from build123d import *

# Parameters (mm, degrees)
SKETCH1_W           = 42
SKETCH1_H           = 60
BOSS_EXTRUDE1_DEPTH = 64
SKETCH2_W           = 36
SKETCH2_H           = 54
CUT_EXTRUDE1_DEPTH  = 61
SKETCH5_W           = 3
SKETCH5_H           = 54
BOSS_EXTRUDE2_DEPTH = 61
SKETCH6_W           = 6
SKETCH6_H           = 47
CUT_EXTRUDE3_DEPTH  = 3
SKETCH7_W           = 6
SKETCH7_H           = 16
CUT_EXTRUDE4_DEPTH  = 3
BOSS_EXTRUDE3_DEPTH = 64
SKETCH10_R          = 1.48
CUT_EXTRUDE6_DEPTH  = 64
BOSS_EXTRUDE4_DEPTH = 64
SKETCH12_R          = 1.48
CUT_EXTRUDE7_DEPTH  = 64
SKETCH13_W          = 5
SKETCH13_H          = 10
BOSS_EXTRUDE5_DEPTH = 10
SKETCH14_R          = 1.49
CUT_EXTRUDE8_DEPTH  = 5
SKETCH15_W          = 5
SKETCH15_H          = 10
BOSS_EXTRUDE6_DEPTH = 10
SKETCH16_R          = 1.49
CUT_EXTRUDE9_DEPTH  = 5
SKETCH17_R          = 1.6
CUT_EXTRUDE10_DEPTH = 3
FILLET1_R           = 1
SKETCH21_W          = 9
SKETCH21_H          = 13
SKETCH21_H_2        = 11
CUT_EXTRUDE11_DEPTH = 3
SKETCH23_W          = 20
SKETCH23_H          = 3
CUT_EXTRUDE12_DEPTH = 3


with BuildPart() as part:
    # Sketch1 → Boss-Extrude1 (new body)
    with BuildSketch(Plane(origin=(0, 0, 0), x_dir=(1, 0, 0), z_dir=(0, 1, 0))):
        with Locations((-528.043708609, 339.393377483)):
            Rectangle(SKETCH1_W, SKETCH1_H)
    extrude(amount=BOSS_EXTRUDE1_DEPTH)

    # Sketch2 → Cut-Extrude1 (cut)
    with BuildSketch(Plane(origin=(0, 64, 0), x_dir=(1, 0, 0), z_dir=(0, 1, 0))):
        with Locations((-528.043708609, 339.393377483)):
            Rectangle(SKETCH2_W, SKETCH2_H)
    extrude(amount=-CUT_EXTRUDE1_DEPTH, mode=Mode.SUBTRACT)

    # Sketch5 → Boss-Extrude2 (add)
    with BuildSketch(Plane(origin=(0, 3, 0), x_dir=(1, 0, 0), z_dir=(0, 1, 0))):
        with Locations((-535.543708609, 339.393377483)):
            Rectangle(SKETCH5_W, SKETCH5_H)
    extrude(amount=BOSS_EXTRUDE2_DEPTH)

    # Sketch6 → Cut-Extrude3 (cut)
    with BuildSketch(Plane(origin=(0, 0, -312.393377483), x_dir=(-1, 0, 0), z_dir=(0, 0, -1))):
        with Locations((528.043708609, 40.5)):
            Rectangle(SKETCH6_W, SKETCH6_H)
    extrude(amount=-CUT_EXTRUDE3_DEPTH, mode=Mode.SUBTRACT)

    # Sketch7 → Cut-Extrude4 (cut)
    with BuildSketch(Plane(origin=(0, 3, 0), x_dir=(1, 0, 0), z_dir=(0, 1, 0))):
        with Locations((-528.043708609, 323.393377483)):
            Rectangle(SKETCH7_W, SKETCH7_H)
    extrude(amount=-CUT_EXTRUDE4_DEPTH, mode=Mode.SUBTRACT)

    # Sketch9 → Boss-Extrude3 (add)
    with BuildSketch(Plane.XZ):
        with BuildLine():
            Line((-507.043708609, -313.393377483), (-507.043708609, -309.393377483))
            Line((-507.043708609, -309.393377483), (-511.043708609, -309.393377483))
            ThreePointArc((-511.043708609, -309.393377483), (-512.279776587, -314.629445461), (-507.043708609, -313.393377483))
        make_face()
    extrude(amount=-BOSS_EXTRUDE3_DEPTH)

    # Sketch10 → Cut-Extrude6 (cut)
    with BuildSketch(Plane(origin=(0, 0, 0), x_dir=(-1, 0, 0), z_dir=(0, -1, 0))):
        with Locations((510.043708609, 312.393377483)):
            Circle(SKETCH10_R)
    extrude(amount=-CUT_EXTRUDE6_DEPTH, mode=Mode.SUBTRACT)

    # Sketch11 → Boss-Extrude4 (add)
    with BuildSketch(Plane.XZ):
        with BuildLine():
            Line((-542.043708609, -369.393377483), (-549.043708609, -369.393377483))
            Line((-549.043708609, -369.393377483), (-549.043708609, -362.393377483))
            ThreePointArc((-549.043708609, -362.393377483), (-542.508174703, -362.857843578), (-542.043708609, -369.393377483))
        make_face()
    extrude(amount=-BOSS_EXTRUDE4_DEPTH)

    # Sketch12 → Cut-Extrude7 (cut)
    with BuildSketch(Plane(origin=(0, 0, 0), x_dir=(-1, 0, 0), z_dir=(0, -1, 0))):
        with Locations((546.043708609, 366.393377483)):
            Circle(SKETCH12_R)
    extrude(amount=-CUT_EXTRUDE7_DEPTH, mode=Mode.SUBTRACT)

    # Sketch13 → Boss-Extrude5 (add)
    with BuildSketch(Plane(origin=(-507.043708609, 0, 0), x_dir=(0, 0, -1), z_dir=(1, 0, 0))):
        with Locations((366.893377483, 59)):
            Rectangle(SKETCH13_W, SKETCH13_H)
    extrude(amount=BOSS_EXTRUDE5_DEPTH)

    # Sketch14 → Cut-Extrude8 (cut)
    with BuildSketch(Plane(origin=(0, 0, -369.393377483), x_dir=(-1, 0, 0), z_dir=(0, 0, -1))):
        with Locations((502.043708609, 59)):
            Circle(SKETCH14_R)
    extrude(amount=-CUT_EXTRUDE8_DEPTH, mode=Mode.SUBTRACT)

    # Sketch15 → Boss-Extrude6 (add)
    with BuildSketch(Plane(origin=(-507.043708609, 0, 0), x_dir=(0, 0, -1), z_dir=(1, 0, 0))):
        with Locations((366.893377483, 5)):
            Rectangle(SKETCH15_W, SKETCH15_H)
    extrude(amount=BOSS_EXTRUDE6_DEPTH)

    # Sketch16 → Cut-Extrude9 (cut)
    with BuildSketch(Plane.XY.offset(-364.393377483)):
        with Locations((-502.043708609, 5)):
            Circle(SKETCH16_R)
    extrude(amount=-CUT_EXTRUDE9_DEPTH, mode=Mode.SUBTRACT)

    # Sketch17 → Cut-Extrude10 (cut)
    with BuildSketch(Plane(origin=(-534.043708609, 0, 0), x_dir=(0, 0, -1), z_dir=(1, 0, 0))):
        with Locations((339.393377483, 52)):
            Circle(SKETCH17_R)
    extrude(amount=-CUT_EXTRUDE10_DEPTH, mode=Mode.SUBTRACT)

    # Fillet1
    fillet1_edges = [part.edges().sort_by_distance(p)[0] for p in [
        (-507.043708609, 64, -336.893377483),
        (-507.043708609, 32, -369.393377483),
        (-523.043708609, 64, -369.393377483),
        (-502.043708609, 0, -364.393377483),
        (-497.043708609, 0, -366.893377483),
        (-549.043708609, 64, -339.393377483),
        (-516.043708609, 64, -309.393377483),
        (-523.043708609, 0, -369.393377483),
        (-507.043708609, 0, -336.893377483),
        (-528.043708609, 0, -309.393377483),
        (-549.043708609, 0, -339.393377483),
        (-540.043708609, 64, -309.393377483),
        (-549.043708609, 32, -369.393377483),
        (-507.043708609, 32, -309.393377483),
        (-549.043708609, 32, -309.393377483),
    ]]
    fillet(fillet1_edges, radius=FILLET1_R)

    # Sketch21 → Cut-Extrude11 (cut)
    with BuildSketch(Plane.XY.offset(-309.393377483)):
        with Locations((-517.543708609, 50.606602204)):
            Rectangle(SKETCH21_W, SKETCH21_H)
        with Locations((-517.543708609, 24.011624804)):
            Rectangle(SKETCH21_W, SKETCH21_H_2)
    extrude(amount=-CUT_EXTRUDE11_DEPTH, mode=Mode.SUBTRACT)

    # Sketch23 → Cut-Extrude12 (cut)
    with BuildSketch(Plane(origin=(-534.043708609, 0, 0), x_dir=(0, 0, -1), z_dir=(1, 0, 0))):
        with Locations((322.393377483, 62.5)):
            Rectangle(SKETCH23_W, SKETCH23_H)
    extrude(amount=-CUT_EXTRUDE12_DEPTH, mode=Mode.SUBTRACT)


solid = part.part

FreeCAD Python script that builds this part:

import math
import FreeCAD as App
import Part
import Sketcher


def edges_at(feature, points):
    """Names of the edges that pass closest to the given points."""
    edges = feature.Shape.Edges
    near = lambda p: min(range(len(edges)), key=lambda i: edges[i].distToShape(Part.Vertex(*p))[0])
    return sorted({f"Edge{near(p) + 1}" for p in points})


def add_polygon(sketch, points):
    """Adds a closed chain of lines whose ends are joined by coincident constraints."""
    first, n = sketch.GeometryCount, len(points)
    for a, b in zip(points, points[1:] + points[:1]):
        sketch.addGeometry(Part.LineSegment(App.Vector(*a, 0), App.Vector(*b, 0)), False)
    for i in range(n):
        sketch.addConstraint(Sketcher.Constraint("Coincident", first + i, 2, first + (i + 1) % n, 1))

doc = App.newDocument("Part")
body = doc.addObject("PartDesign::Body", "Body")

# Sketch on XZ plane
sketch1 = doc.addObject("Sketcher::SketchObject", "Sketch")
body.addObject(sketch1)
sketch1.AttachmentSupport = (doc.XZ_Plane, [""])
sketch1.MapMode = "FlatFace"
add_polygon(sketch1, [(-549.043709, -369.393377), (-549.043709, -309.393377), (-507.043709, -309.393377), (-507.043709, -369.393377)])  # lines 0-3
sketch1.addConstraint(Sketcher.Constraint("Vertical", 0))
sketch1.addConstraint(Sketcher.Constraint("Horizontal", 1))
sketch1.addConstraint(Sketcher.Constraint("Vertical", 2))
sketch1.addConstraint(Sketcher.Constraint("Horizontal", 3))
sketch1.addConstraint(Sketcher.Constraint("DistanceX", 1, 1, 1, 2, 42.0))
sketch1.addConstraint(Sketcher.Constraint("DistanceY", 0, 1, 0, 2, 60.0))
sketch1.addConstraint(Sketcher.Constraint("DistanceX", 0, 2, -1, 1, 549.043709))
sketch1.addConstraint(Sketcher.Constraint("DistanceY", 0, 2, -1, 1, 309.393377))
pad1 = doc.addObject("PartDesign::Pad", "Pad")
body.addObject(pad1)
pad1.Profile = sketch1
pad1.Length = 64
pad1.Reversed = True

# Sketch on XZ plane
sketch2 = doc.addObject("Sketcher::SketchObject", "Sketch001")
body.addObject(sketch2)
sketch2.AttachmentSupport = (doc.XZ_Plane, [""])
sketch2.MapMode = "FlatFace"
sketch2.AttachmentOffset = App.Placement(App.Vector(0, 0, -64), App.Rotation())
add_polygon(sketch2, [(-546.043709, -366.393377), (-546.043709, -312.393377), (-510.043709, -312.393377), (-510.043709, -366.393377)])  # lines 0-3
sketch2.addConstraint(Sketcher.Constraint("Vertical", 0))
sketch2.addConstraint(Sketcher.Constraint("Horizontal", 1))
sketch2.addConstraint(Sketcher.Constraint("Vertical", 2))
sketch2.addConstraint(Sketcher.Constraint("Horizontal", 3))
sketch2.addConstraint(Sketcher.Constraint("DistanceX", 1, 1, 1, 2, 36.0))
sketch2.addConstraint(Sketcher.Constraint("DistanceY", 0, 1, 0, 2, 54.0))
sketch2.addConstraint(Sketcher.Constraint("DistanceX", 0, 2, -1, 1, 546.043709))
sketch2.addConstraint(Sketcher.Constraint("DistanceY", 0, 2, -1, 1, 312.393377))
pocket1 = doc.addObject("PartDesign::Pocket", "Pocket")
body.addObject(pocket1)
pocket1.Profile = sketch2
pocket1.Length = 61
pocket1.Reversed = True

# Sketch on XZ plane
sketch3 = doc.addObject("Sketcher::SketchObject", "Sketch002")
body.addObject(sketch3)
sketch3.AttachmentSupport = (doc.XZ_Plane, [""])
sketch3.MapMode = "FlatFace"
sketch3.AttachmentOffset = App.Placement(App.Vector(0, 0, -3), App.Rotation())
add_polygon(sketch3, [(-537.043709, -366.393377), (-537.043709, -312.393377), (-534.043709, -312.393377), (-534.043709, -366.393377)])  # lines 0-3
sketch3.addConstraint(Sketcher.Constraint("Vertical", 0))
sketch3.addConstraint(Sketcher.Constraint("Horizontal", 1))
sketch3.addConstraint(Sketcher.Constraint("Vertical", 2))
sketch3.addConstraint(Sketcher.Constraint("Horizontal", 3))
sketch3.addConstraint(Sketcher.Constraint("DistanceX", 1, 1, 1, 2, 3.0))
sketch3.addConstraint(Sketcher.Constraint("DistanceY", 0, 1, 0, 2, 54.0))
sketch3.addConstraint(Sketcher.Constraint("DistanceX", 0, 2, -1, 1, 537.043709))
sketch3.addConstraint(Sketcher.Constraint("DistanceY", 0, 2, -1, 1, 312.393377))
pad2 = doc.addObject("PartDesign::Pad", "Pad001")
body.addObject(pad2)
pad2.Profile = sketch3
pad2.Length = 61
pad2.Reversed = True

# Sketch on XY plane
sketch4 = doc.addObject("Sketcher::SketchObject", "Sketch003")
body.addObject(sketch4)
sketch4.AttachmentSupport = (doc.XY_Plane, [""])
sketch4.MapMode = "FlatFace"
sketch4.AttachmentOffset = App.Placement(App.Vector(0, 0, -312.393377), App.Rotation())
add_polygon(sketch4, [(-525.043709, 64), (-525.043709, 17), (-531.043709, 17), (-531.043709, 64)])  # lines 0-3
sketch4.addConstraint(Sketcher.Constraint("Vertical", 0))
sketch4.addConstraint(Sketcher.Constraint("Horizontal", 1))
sketch4.addConstraint(Sketcher.Constraint("Vertical", 2))
sketch4.addConstraint(Sketcher.Constraint("Horizontal", 3))
sketch4.addConstraint(Sketcher.Constraint("DistanceX", 1, 2, 1, 1, 6.0))
sketch4.addConstraint(Sketcher.Constraint("DistanceY", 0, 2, 0, 1, 47.0))
sketch4.addConstraint(Sketcher.Constraint("DistanceY", -1, 1, 0, 2, 17.0))
sketch4.addConstraint(Sketcher.Constraint("DistanceX", 0, 2, -1, 1, 525.043709))
pocket2 = doc.addObject("PartDesign::Pocket", "Pocket001")
body.addObject(pocket2)
pocket2.Profile = sketch4
pocket2.Length = 3
pocket2.Reversed = True

# Sketch on XZ plane
sketch5 = doc.addObject("Sketcher::SketchObject", "Sketch004")
body.addObject(sketch5)
sketch5.AttachmentSupport = (doc.XZ_Plane, [""])
sketch5.MapMode = "FlatFace"
sketch5.AttachmentOffset = App.Placement(App.Vector(0, 0, -3), App.Rotation())
add_polygon(sketch5, [(-531.043709, -331.393377), (-531.043709, -315.393377), (-525.043709, -315.393377), (-525.043709, -331.393377)])  # lines 0-3
sketch5.addConstraint(Sketcher.Constraint("Vertical", 0))
sketch5.addConstraint(Sketcher.Constraint("Horizontal", 1))
sketch5.addConstraint(Sketcher.Constraint("Vertical", 2))
sketch5.addConstraint(Sketcher.Constraint("Horizontal", 3))
sketch5.addConstraint(Sketcher.Constraint("DistanceX", 1, 1, 1, 2, 6.0))
sketch5.addConstraint(Sketcher.Constraint("DistanceY", 0, 1, 0, 2, 16.0))
sketch5.addConstraint(Sketcher.Constraint("DistanceX", 0, 2, -1, 1, 531.043709))
sketch5.addConstraint(Sketcher.Constraint("DistanceY", 0, 2, -1, 1, 315.393377))
pocket3 = doc.addObject("PartDesign::Pocket", "Pocket002")
body.addObject(pocket3)
pocket3.Profile = sketch5
pocket3.Length = 3
pocket3.Reversed = True

# Sketch on XZ plane
sketch6 = doc.addObject("Sketcher::SketchObject", "Sketch005")
body.addObject(sketch6)
sketch6.AttachmentSupport = (doc.XZ_Plane, [""])
sketch6.MapMode = "FlatFace"
sketch6.addGeometry(Part.LineSegment(App.Vector(-507.043709, -313.393377, 0), App.Vector(-507.043709, -309.393377, 0)), False)
sketch6.addGeometry(Part.LineSegment(App.Vector(-507.043709, -309.393377, 0), App.Vector(-511.043709, -309.393377, 0)), False)
sketch6.addGeometry(Part.ArcOfCircle(Part.Circle(App.Vector(-510.043709, -312.393377, 0), App.Vector(0, 0, 1), 3.162278), math.radians(108.434949), math.radians(341.565051)), False)
sketch6.addConstraint(Sketcher.Constraint("Coincident", 0, 2, 1, 1))
sketch6.addConstraint(Sketcher.Constraint("Coincident", 1, 2, 2, 1))
sketch6.addConstraint(Sketcher.Constraint("Coincident", 2, 2, 0, 1))
sketch6.addConstraint(Sketcher.Constraint("Vertical", 0))
sketch6.addConstraint(Sketcher.Constraint("Horizontal", 1))
sketch6.addConstraint(Sketcher.Constraint("Equal", 1, 0))
sketch6.addConstraint(Sketcher.Constraint("DistanceX", 1, 2, 1, 1, 4.0))
sketch6.addConstraint(Sketcher.Constraint("DistanceX", 2, 3, 0, 2, 3.0))
sketch6.addConstraint(Sketcher.Constraint("DistanceX", 2, 3, -1, 1, 510.043709))
sketch6.addConstraint(Sketcher.Constraint("DistanceY", 2, 3, -1, 1, 312.393377))
pad3 = doc.addObject("PartDesign::Pad", "Pad002")
body.addObject(pad3)
pad3.Profile = sketch6
pad3.Length = 64
pad3.Reversed = True

# Sketch on XZ plane
sketch7 = doc.addObject("Sketcher::SketchObject", "Sketch006")
body.addObject(sketch7)
sketch7.AttachmentSupport = (doc.XZ_Plane, [""])
sketch7.MapMode = "FlatFace"
sketch7.addGeometry(Part.Circle(App.Vector(-510.043709, -312.393377, 0), App.Vector(0, 0, 1), 1.48), False)
sketch7.addConstraint(Sketcher.Constraint("Diameter", 0, 2.96))
sketch7.addConstraint(Sketcher.Constraint("DistanceX", 0, 3, -1, 1, 510.043709))
sketch7.addConstraint(Sketcher.Constraint("DistanceY", 0, 3, -1, 1, 312.393377))
pocket4 = doc.addObject("PartDesign::Pocket", "Pocket003")
body.addObject(pocket4)
pocket4.Profile = sketch7
pocket4.Length = 64

# Sketch on XZ plane
sketch8 = doc.addObject("Sketcher::SketchObject", "Sketch007")
body.addObject(sketch8)
sketch8.AttachmentSupport = (doc.XZ_Plane, [""])
sketch8.MapMode = "FlatFace"
sketch8.addGeometry(Part.LineSegment(App.Vector(-549.043709, -369.393377, 0), App.Vector(-542.043709, -369.393377, 0)), False)
sketch8.addGeometry(Part.ArcOfCircle(Part.Circle(App.Vector(-546.043709, -366.393377, 0), App.Vector(0, 0, 1), 5), math.radians(-36.869898), math.radians(126.869898)), False)
sketch8.addGeometry(Part.LineSegment(App.Vector(-549.043709, -362.393377, 0), App.Vector(-549.043709, -369.393377, 0)), False)
sketch8.addConstraint(Sketcher.Constraint("Coincident", 0, 2, 1, 1))
sketch8.addConstraint(Sketcher.Constraint("Coincident", 1, 2, 2, 1))
sketch8.addConstraint(Sketcher.Constraint("Coincident", 2, 2, 0, 1))
sketch8.addConstraint(Sketcher.Constraint("Horizontal", 0))
sketch8.addConstraint(Sketcher.Constraint("Vertical", 2))
sketch8.addConstraint(Sketcher.Constraint("Equal", 0, 2))
sketch8.addConstraint(Sketcher.Constraint("Radius", 1, 5.0))
sketch8.addConstraint(Sketcher.Constraint("DistanceX", 0, 1, 0, 2, 7.0))
sketch8.addConstraint(Sketcher.Constraint("DistanceX", 1, 3, -1, 1, 546.043709))
sketch8.addConstraint(Sketcher.Constraint("DistanceY", 1, 3, -1, 1, 366.393377))
pad4 = doc.addObject("PartDesign::Pad", "Pad003")
body.addObject(pad4)
pad4.Profile = sketch8
pad4.Length = 64
pad4.Reversed = True

# Sketch on XZ plane
sketch9 = doc.addObject("Sketcher::SketchObject", "Sketch008")
body.addObject(sketch9)
sketch9.AttachmentSupport = (doc.XZ_Plane, [""])
sketch9.MapMode = "FlatFace"
sketch9.addGeometry(Part.Circle(App.Vector(-546.043709, -366.393377, 0), App.Vector(0, 0, 1), 1.48), False)
sketch9.addConstraint(Sketcher.Constraint("Diameter", 0, 2.96))
sketch9.addConstraint(Sketcher.Constraint("DistanceX", 0, 3, -1, 1, 546.043709))
sketch9.addConstraint(Sketcher.Constraint("DistanceY", 0, 3, -1, 1, 366.393377))
pocket5 = doc.addObject("PartDesign::Pocket", "Pocket004")
body.addObject(pocket5)
pocket5.Profile = sketch9
pocket5.Length = 64

# Sketch on YZ plane
sketch10 = doc.addObject("Sketcher::SketchObject", "Sketch009")
body.addObject(sketch10)
sketch10.AttachmentSupport = (doc.YZ_Plane, [""])
sketch10.MapMode = "FlatFace"
sketch10.AttachmentOffset = App.Placement(App.Vector(0, 0, -507.043709), App.Rotation())
add_polygon(sketch10, [(64, -364.393377), (54, -364.393377), (54, -369.393377), (64, -369.393377)])  # lines 0-3
sketch10.addConstraint(Sketcher.Constraint("Horizontal", 0))
sketch10.addConstraint(Sketcher.Constraint("Vertical", 1))
sketch10.addConstraint(Sketcher.Constraint("Horizontal", 2))
sketch10.addConstraint(Sketcher.Constraint("Vertical", 3))
sketch10.addConstraint(Sketcher.Constraint("DistanceX", 0, 2, 0, 1, 10.0))
sketch10.addConstraint(Sketcher.Constraint("DistanceY", 1, 2, 1, 1, 5.0))
sketch10.addConstraint(Sketcher.Constraint("DistanceX", -1, 1, 0, 2, 54.0))
sketch10.addConstraint(Sketcher.Constraint("DistanceY", 0, 2, -1, 1, 364.393377))
pad5 = doc.addObject("PartDesign::Pad", "Pad004")
body.addObject(pad5)
pad5.Profile = sketch10
pad5.Length = 10

# Sketch on XY plane
sketch11 = doc.addObject("Sketcher::SketchObject", "Sketch010")
body.addObject(sketch11)
sketch11.AttachmentSupport = (doc.XY_Plane, [""])
sketch11.MapMode = "FlatFace"
sketch11.AttachmentOffset = App.Placement(App.Vector(0, 0, -369.393377), App.Rotation())
sketch11.addGeometry(Part.Circle(App.Vector(-502.043709, 59, 0), App.Vector(0, 0, 1), 1.49), False)
sketch11.addConstraint(Sketcher.Constraint("Diameter", 0, 2.98))
sketch11.addConstraint(Sketcher.Constraint("DistanceY", -1, 1, 0, 3, 59.0))
sketch11.addConstraint(Sketcher.Constraint("DistanceX", 0, 3, -1, 1, 502.043709))
pocket6 = doc.addObject("PartDesign::Pocket", "Pocket005")
body.addObject(pocket6)
pocket6.Profile = sketch11
pocket6.Length = 5
pocket6.Reversed = True

# Sketch on YZ plane
sketch12 = doc.addObject("Sketcher::SketchObject", "Sketch011")
body.addObject(sketch12)
sketch12.AttachmentSupport = (doc.YZ_Plane, [""])
sketch12.MapMode = "FlatFace"
sketch12.AttachmentOffset = App.Placement(App.Vector(0, 0, -507.043709), App.Rotation())
add_polygon(sketch12, [(10, -364.393377), (0, -364.393377), (0, -369.393377), (10, -369.393377)])  # lines 0-3
sketch12.addConstraint(Sketcher.Constraint("Horizontal", 0))
sketch12.addConstraint(Sketcher.Constraint("Vertical", 1))
sketch12.addConstraint(Sketcher.Constraint("Horizontal", 2))
sketch12.addConstraint(Sketcher.Constraint("Vertical", 3))
sketch12.addConstraint(Sketcher.Constraint("PointOnObject", 0, 2, -2))
sketch12.addConstraint(Sketcher.Constraint("DistanceX", 0, 2, 0, 1, 10.0))
sketch12.addConstraint(Sketcher.Constraint("DistanceY", 1, 2, 1, 1, 5.0))
sketch12.addConstraint(Sketcher.Constraint("DistanceY", 0, 2, -1, 1, 364.393377))
pad6 = doc.addObject("PartDesign::Pad", "Pad005")
body.addObject(pad6)
pad6.Profile = sketch12
pad6.Length = 10

# Sketch on XY plane
sketch13 = doc.addObject("Sketcher::SketchObject", "Sketch012")
body.addObject(sketch13)
sketch13.AttachmentSupport = (doc.XY_Plane, [""])
sketch13.MapMode = "FlatFace"
sketch13.AttachmentOffset = App.Placement(App.Vector(0, 0, -364.393377), App.Rotation())
sketch13.addGeometry(Part.Circle(App.Vector(-502.043709, 5, 0), App.Vector(0, 0, 1), 1.49), False)
sketch13.addConstraint(Sketcher.Constraint("Diameter", 0, 2.98))
sketch13.addConstraint(Sketcher.Constraint("DistanceY", -1, 1, 0, 3, 5.0))
sketch13.addConstraint(Sketcher.Constraint("DistanceX", 0, 3, -1, 1, 502.043709))
pocket7 = doc.addObject("PartDesign::Pocket", "Pocket006")
body.addObject(pocket7)
pocket7.Profile = sketch13
pocket7.Length = 5

# Sketch on YZ plane
sketch14 = doc.addObject("Sketcher::SketchObject", "Sketch013")
body.addObject(sketch14)
sketch14.AttachmentSupport = (doc.YZ_Plane, [""])
sketch14.MapMode = "FlatFace"
sketch14.AttachmentOffset = App.Placement(App.Vector(0, 0, -534.043709), App.Rotation())
sketch14.addGeometry(Part.Circle(App.Vector(52, -339.393377, 0), App.Vector(0, 0, 1), 1.6), False)
sketch14.addConstraint(Sketcher.Constraint("Diameter", 0, 3.2))
sketch14.addConstraint(Sketcher.Constraint("DistanceX", -1, 1, 0, 3, 52.0))
sketch14.addConstraint(Sketcher.Constraint("DistanceY", 0, 3, -1, 1, 339.393377))
pocket8 = doc.addObject("PartDesign::Pocket", "Pocket007")
body.addObject(pocket8)
pocket8.Profile = sketch14
pocket8.Length = 3
doc.recompute()

fillet = doc.addObject("PartDesign::Fillet", "Fillet")
body.addObject(fillet)
fillet.Base = (pocket8, edges_at(pocket8, [
    (-507.044, 64, -336.893),
    (-507.044, 32, -369.393),
    (-523.044, 64, -369.393),
    (-502.044, 0, -364.393),
    (-497.044, 0, -366.893),
    (-549.044, 64, -339.393),
    (-516.044, 64, -309.393),
    (-523.044, 0, -369.393),
    (-507.044, 0, -336.893),
    (-528.044, 0, -309.393),
    (-549.044, 0, -339.393),
    (-540.044, 64, -309.393),
    (-549.044, 32, -369.393),
    (-507.044, 32, -309.393),
    (-549.044, 32, -309.393),
]))
fillet.Radius = 1

# Sketch on XY plane
sketch15 = doc.addObject("Sketcher::SketchObject", "Sketch014")
body.addObject(sketch15)
sketch15.AttachmentSupport = (doc.XY_Plane, [""])
sketch15.MapMode = "FlatFace"
sketch15.AttachmentOffset = App.Placement(App.Vector(0, 0, -309.393377), App.Rotation())
add_polygon(sketch15, [(-522.043709, 57.106602), (-522.043709, 44.106602), (-513.043709, 44.106602), (-513.043709, 57.106602)])  # lines 0-3
add_polygon(sketch15, [(-522.043709, 29.511625), (-522.043709, 18.511625), (-513.043709, 18.511625), (-513.043709, 29.511625)])  # lines 4-7
sketch15.addConstraint(Sketcher.Constraint("Vertical", 0))
sketch15.addConstraint(Sketcher.Constraint("Horizontal", 1))
sketch15.addConstraint(Sketcher.Constraint("Vertical", 2))
sketch15.addConstraint(Sketcher.Constraint("Horizontal", 3))
sketch15.addConstraint(Sketcher.Constraint("Vertical", 4))
sketch15.addConstraint(Sketcher.Constraint("Horizontal", 5))
sketch15.addConstraint(Sketcher.Constraint("Vertical", 6))
sketch15.addConstraint(Sketcher.Constraint("Horizontal", 7))
sketch15.addConstraint(Sketcher.Constraint("Vertical", 3, 2, 4, 2))
sketch15.addConstraint(Sketcher.Constraint("Vertical", 2, 2, 5, 2))
sketch15.addConstraint(Sketcher.Constraint("DistanceX", 1, 1, 1, 2, 9.0))
sketch15.addConstraint(Sketcher.Constraint("DistanceY", 0, 2, 0, 1, 13.0))
sketch15.addConstraint(Sketcher.Constraint("DistanceY", 4, 2, 4, 1, 11.0))
sketch15.addConstraint(Sketcher.Constraint("DistanceX", 0, 2, -1, 1, 522.043709))
sketch15.addConstraint(Sketcher.Constraint("DistanceY", -1, 1, 0, 2, 44.106602))
sketch15.addConstraint(Sketcher.Constraint("DistanceY", -1, 1, 4, 2, 18.511625))
pocket9 = doc.addObject("PartDesign::Pocket", "Pocket008")
body.addObject(pocket9)
pocket9.Profile = sketch15
pocket9.Length = 3

# Sketch on YZ plane
sketch16 = doc.addObject("Sketcher::SketchObject", "Sketch015")
body.addObject(sketch16)
sketch16.AttachmentSupport = (doc.YZ_Plane, [""])
sketch16.MapMode = "FlatFace"
sketch16.AttachmentOffset = App.Placement(App.Vector(0, 0, -534.043709), App.Rotation())
add_polygon(sketch16, [(64, -312.393377), (61, -312.393377), (61, -332.393377), (64, -332.393377)])  # lines 0-3
sketch16.addConstraint(Sketcher.Constraint("Horizontal", 0))
sketch16.addConstraint(Sketcher.Constraint("Vertical", 1))
sketch16.addConstraint(Sketcher.Constraint("Horizontal", 2))
sketch16.addConstraint(Sketcher.Constraint("Vertical", 3))
sketch16.addConstraint(Sketcher.Constraint("DistanceX", 0, 2, 0, 1, 3.0))
sketch16.addConstraint(Sketcher.Constraint("DistanceY", 1, 2, 1, 1, 20.0))
sketch16.addConstraint(Sketcher.Constraint("DistanceX", -1, 1, 0, 2, 61.0))
sketch16.addConstraint(Sketcher.Constraint("DistanceY", 0, 2, -1, 1, 312.393377))
pocket10 = doc.addObject("PartDesign::Pocket", "Pocket009")
body.addObject(pocket10)
pocket10.Profile = sketch16
pocket10.Length = 3

doc.recompute()
